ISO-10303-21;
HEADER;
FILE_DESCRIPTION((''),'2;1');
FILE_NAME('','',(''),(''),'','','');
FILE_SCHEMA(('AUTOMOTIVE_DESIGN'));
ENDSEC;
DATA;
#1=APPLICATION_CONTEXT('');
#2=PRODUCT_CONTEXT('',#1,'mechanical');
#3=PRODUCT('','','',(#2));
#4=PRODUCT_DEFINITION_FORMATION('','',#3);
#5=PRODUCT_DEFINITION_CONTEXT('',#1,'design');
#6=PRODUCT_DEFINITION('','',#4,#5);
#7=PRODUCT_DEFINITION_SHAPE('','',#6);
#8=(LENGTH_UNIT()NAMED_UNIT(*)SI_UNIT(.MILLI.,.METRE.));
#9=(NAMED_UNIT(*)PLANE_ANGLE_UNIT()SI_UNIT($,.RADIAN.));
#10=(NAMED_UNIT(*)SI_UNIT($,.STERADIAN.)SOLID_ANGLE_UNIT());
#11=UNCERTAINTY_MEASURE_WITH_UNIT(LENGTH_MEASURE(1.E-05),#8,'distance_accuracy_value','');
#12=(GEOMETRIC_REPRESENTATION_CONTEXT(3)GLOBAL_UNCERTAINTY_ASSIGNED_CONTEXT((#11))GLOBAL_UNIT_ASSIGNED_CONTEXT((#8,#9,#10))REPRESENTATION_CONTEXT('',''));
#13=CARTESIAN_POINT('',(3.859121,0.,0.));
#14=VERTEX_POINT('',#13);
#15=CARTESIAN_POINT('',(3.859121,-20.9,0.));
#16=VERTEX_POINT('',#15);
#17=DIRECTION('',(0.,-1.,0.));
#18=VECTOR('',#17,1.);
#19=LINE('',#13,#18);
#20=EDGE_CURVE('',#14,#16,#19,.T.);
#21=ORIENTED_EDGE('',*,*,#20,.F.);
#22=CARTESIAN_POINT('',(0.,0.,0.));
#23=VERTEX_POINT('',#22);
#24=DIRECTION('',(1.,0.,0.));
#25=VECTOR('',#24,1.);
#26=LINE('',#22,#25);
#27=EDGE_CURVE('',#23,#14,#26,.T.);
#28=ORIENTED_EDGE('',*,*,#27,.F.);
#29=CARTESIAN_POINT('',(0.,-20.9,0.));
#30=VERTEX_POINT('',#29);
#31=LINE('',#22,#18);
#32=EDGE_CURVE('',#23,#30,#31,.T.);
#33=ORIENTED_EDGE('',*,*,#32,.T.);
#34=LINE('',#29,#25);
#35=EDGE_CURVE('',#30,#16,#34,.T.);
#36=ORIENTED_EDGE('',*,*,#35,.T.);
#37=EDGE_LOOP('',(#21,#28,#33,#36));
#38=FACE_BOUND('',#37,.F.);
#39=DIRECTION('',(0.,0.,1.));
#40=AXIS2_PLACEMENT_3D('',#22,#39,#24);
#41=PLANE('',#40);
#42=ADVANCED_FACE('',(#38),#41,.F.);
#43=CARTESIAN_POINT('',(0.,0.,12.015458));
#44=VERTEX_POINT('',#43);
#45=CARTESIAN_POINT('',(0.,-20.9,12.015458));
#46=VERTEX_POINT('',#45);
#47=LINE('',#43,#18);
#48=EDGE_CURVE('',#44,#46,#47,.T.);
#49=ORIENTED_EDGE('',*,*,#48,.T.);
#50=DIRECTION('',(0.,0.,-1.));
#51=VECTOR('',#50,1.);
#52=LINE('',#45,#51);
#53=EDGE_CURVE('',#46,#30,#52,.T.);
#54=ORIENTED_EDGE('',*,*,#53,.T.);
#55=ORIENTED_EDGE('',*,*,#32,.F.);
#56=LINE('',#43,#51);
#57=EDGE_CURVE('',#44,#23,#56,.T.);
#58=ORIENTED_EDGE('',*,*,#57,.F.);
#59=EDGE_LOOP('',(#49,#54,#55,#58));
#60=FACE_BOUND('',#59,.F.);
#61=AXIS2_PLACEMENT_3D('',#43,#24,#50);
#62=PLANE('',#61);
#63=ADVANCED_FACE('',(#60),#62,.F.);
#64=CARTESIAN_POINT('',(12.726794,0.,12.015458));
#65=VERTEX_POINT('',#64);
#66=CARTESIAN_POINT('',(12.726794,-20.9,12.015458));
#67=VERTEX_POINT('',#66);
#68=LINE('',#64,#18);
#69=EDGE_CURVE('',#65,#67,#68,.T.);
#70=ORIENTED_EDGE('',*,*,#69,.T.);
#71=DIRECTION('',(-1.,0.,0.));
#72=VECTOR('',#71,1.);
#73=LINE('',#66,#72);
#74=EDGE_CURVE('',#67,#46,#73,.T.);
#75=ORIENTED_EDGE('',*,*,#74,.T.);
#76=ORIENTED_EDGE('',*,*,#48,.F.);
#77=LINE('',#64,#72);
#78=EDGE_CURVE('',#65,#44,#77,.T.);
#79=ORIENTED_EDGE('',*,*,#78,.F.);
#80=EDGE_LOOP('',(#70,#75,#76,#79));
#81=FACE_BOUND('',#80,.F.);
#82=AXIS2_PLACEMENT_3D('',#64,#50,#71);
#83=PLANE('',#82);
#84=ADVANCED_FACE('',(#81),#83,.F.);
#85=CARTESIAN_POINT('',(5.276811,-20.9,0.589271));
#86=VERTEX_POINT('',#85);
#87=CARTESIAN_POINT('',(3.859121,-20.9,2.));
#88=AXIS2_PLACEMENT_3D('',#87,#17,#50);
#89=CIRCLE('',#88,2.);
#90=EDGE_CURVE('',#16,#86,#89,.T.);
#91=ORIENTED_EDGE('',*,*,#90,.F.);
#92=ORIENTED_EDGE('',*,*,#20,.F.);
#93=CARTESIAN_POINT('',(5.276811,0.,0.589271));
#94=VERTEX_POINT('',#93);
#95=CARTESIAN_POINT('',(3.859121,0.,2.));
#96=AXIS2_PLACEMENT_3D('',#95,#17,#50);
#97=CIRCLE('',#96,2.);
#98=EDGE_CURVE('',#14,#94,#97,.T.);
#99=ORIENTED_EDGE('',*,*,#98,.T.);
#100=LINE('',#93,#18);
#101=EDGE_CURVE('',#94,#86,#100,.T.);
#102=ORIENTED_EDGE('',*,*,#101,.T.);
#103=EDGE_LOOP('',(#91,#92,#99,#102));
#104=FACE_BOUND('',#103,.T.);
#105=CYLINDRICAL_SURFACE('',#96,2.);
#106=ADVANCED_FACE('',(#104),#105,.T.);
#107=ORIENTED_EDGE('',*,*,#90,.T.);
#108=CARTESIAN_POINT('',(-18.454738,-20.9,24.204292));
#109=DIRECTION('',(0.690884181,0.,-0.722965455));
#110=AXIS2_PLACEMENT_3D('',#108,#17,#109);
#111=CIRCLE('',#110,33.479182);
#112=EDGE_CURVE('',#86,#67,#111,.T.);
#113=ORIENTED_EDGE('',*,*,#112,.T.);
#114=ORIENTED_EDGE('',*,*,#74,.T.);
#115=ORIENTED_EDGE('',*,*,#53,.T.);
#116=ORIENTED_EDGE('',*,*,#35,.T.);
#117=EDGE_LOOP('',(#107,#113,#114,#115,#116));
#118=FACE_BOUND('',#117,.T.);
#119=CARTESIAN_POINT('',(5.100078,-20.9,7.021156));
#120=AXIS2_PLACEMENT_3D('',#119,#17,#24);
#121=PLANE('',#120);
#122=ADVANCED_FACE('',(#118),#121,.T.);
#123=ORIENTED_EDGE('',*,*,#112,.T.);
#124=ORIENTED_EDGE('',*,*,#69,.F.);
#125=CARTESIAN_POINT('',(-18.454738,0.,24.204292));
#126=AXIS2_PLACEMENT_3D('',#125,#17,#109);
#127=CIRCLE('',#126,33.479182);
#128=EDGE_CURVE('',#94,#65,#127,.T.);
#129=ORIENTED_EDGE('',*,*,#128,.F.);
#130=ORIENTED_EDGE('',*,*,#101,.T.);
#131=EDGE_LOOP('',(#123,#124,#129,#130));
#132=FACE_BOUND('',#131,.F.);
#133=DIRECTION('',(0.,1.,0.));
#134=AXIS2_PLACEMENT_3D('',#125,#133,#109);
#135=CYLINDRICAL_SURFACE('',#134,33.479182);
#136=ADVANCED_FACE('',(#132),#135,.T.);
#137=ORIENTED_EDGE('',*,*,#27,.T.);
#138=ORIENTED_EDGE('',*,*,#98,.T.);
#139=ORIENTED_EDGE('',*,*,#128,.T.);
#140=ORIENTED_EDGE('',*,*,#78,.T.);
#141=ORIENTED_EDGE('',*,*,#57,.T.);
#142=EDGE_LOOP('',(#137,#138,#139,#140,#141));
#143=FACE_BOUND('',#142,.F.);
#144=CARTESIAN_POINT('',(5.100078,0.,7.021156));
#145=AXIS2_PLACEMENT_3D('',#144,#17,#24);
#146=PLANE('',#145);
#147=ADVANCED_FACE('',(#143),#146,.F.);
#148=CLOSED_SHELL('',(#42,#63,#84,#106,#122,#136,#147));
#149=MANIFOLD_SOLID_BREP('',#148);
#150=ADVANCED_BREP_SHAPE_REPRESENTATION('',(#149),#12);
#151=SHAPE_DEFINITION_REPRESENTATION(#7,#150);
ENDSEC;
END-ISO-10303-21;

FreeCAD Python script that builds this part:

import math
import FreeCAD as App
import Part
import Sketcher
Q = App.Units.Quantity


def edges_at(feature, points):
    """Names of the edges that pass closest to the given points."""
    edges = feature.Shape.Edges
    near = lambda p: min(range(len(edges)), key=lambda i: edges[i].distToShape(Part.Vertex(*p))[0])
    return sorted({f"Edge{near(p) + 1}" for p in points})

doc = App.newDocument("Part")
body = doc.addObject("PartDesign::Body", "Body")

# Sketch on XZ plane
sketch1 = body.newObject("Sketcher::SketchObject", "Sketch")
sketch1.AttachmentSupport = (doc.getObject("XZ_Plane"), [""])
sketch1.MapMode = "FlatFace"
sketch1.addGeometry(Part.LineSegment(App.Vector(0, 12, 0), App.Vector(0, 0, 0)), False)
sketch1.addGeometry(Part.LineSegment(App.Vector(0, 0, 0), App.Vector(4.7, 0, 0)), False)
sketch1.addGeometry(Part.ArcOfCircle(Part.Circle(App.Vector(-18.5, 24.2, 0), App.Vector(0, 0, 1), 33.5), math.radians(-46), math.radians(-21)), False)
sketch1.addGeometry(Part.LineSegment(App.Vector(12.7, 12, 0), App.Vector(0, 12, 0)), False)
sketch1.addConstraint(Sketcher.Constraint("Coincident", 0, 2, 1, 1))
sketch1.addConstraint(Sketcher.Constraint("Coincident", 1, 2, 2, 1))
sketch1.addConstraint(Sketcher.Constraint("Coincident", 2, 2, 3, 1))
sketch1.addConstraint(Sketcher.Constraint("Coincident", 3, 2, 0, 1))
sketch1.addConstraint(Sketcher.Constraint("Vertical", 0))
sketch1.addConstraint(Sketcher.Constraint("Horizontal", 1))
sketch1.addConstraint(Sketcher.Constraint("Horizontal", 3))
sketch1.addConstraint(Sketcher.Constraint("Coincident", 0, 2, -1, 1))
sketch1.addConstraint(Sketcher.Constraint("DistanceX", 1, 1, 1, 2, Q("4.675499 mm")))
sketch1.addConstraint(Sketcher.Constraint("Radius", 2, Q("33.479182 mm")))
sketch1.addConstraint(Sketcher.Constraint("DistanceY", 0, 2, 0, 1, Q("12.015458 mm")))
sketch1.addConstraint(Sketcher.Constraint("DistanceX", 3, 2, 3, 1, Q("12.726794 mm")))
pad1 = body.newObject("PartDesign::Pad", "Pad")
pad1.Profile = sketch1
pad1.Length = 20.9
doc.recompute()

fillet = body.newObject("PartDesign::Fillet", "Fillet")
fillet.Base = (pad1, edges_at(pad1, [(4.675, -10.45, 0)]))
fillet.Radius = 2

doc.recompute()
